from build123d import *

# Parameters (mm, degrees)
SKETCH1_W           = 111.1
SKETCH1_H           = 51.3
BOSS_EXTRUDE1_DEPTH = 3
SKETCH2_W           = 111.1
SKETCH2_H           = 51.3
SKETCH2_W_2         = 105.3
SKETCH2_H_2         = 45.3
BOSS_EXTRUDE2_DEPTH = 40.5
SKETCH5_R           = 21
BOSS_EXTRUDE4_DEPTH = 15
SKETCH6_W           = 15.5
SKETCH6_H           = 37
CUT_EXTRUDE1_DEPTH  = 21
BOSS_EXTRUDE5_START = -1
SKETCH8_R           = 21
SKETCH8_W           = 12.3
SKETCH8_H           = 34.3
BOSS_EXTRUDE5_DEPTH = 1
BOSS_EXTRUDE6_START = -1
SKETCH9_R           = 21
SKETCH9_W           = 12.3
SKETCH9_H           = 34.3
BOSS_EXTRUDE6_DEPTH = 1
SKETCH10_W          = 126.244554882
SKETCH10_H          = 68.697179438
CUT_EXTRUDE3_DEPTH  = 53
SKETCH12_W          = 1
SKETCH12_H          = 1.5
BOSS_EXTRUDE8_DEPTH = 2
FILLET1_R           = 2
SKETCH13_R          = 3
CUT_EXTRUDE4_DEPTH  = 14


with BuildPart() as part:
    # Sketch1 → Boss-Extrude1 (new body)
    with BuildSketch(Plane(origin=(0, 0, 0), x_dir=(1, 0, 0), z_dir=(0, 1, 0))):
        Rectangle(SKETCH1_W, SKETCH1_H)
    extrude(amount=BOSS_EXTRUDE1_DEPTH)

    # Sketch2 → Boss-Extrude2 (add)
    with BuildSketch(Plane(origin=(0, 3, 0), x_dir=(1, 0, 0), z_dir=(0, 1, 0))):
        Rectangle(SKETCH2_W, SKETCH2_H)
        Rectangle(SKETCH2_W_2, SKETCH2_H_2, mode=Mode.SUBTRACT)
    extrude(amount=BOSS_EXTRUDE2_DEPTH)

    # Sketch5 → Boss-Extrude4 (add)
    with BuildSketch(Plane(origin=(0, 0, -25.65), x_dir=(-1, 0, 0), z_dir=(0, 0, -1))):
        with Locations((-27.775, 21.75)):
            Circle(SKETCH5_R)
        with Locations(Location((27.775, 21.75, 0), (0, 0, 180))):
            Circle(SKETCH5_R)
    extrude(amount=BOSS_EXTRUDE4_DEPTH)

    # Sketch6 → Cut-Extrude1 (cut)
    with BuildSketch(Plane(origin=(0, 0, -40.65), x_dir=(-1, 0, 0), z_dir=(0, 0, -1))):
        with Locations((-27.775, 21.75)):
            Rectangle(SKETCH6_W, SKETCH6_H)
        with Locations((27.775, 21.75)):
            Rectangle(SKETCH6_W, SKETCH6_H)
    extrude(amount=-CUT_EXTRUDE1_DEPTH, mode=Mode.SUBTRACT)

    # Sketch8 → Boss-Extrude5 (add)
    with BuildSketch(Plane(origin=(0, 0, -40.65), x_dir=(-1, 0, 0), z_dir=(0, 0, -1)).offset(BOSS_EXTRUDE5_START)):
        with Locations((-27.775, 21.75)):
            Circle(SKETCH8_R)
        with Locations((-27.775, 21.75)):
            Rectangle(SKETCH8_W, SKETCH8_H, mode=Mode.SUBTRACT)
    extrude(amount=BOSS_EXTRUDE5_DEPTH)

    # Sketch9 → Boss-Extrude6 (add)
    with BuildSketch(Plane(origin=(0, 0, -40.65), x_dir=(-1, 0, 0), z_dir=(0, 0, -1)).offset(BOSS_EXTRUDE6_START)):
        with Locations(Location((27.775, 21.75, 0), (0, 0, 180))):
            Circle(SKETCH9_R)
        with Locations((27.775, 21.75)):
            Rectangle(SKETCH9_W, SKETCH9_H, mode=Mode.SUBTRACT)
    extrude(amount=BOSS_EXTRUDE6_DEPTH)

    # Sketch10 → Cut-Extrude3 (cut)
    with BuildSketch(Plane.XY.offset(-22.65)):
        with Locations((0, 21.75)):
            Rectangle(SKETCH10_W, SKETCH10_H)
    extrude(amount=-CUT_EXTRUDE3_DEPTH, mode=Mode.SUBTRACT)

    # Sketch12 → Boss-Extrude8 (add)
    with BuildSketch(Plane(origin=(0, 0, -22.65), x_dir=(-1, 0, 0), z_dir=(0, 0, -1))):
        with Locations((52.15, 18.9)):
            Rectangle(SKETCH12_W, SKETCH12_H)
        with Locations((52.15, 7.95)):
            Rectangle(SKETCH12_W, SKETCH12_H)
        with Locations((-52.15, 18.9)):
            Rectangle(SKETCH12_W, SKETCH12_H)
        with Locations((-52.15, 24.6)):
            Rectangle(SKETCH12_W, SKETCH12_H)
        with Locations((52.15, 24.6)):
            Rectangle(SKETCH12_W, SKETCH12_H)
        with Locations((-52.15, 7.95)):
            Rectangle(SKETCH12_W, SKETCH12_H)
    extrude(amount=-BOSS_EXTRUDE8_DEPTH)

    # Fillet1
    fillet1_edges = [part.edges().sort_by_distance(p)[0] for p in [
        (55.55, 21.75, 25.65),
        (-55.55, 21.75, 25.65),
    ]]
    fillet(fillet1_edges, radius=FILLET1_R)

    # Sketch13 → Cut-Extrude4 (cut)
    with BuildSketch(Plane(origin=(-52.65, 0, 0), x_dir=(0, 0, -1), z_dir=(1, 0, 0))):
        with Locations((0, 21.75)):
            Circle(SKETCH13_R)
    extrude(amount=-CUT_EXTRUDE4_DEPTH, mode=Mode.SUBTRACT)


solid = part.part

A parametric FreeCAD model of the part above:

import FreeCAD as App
import Part
import Sketcher
from FreeCAD import Vector
Q = App.Units.Quantity


def edges_at(feature, points):
    """Names of the edges that pass closest to the given points."""
    edges = feature.Shape.Edges
    near = lambda p: min(range(len(edges)), key=lambda i: edges[i].distToShape(Part.Vertex(*p))[0])
    return sorted({f"Edge{near(p) + 1}" for p in points})

doc = App.newDocument("Part")
body = doc.addObject("PartDesign::Body", "Body")

sketch1 = body.newObject("Sketcher::SketchObject", "Sketch")
sketch1.AttachmentSupport = (doc.getObject("XZ_Plane"), [""])
sketch1.MapMode = "FlatFace"
sketch1.addGeometry(Part.LineSegment(Vector(-56, -26, 0), Vector(-56, 26, 0)), False)
sketch1.addGeometry(Part.LineSegment(Vector(-56, 26, 0), Vector(56, 26, 0)), False)
sketch1.addGeometry(Part.LineSegment(Vector(56, 26, 0), Vector(56, -26, 0)), False)
sketch1.addGeometry(Part.LineSegment(Vector(56, -26, 0), Vector(-56, -26, 0)), False)
sketch1.addConstraint(Sketcher.Constraint("Coincident", 0, 2, 1, 1))
sketch1.addConstraint(Sketcher.Constraint("Coincident", 1, 2, 2, 1))
sketch1.addConstraint(Sketcher.Constraint("Coincident", 2, 2, 3, 1))
sketch1.addConstraint(Sketcher.Constraint("Coincident", 3, 2, 0, 1))
sketch1.addConstraint(Sketcher.Constraint("Vertical", 0))
sketch1.addConstraint(Sketcher.Constraint("Horizontal", 1))
sketch1.addConstraint(Sketcher.Constraint("Vertical", 2))
sketch1.addConstraint(Sketcher.Constraint("Horizontal", 3))
sketch1.addConstraint(Sketcher.Constraint("Symmetric", 0, 2, 2, 2, -1, 1))
sketch1.addConstraint(Sketcher.Constraint("DistanceX", 1, 1, 1, 2, Q("111.1 mm")))
sketch1.addConstraint(Sketcher.Constraint("DistanceY", 0, 1, 0, 2, Q("51.3 mm")))
pad1 = body.newObject("PartDesign::Pad", "Pad")
pad1.Profile = sketch1
pad1.Length = 3
pad1.Reversed = True

sketch2 = body.newObject("Sketcher::SketchObject", "Sketch001")
sketch2.AttachmentSupport = (doc.getObject("XZ_Plane"), [""])
sketch2.MapMode = "FlatFace"
sketch2.AttachmentOffset = App.Placement(Vector(0, 0, -3), App.Rotation())
sketch2.addGeometry(Part.LineSegment(Vector(-56, -26, 0), Vector(-56, 26, 0)), False)
sketch2.addGeometry(Part.LineSegment(Vector(-56, 26, 0), Vector(56, 26, 0)), False)
sketch2.addGeometry(Part.LineSegment(Vector(56, 26, 0), Vector(56, -26, 0)), False)
sketch2.addGeometry(Part.LineSegment(Vector(56, -26, 0), Vector(-56, -26, 0)), False)
sketch2.addGeometry(Part.LineSegment(Vector(53, 23, 0), Vector(-53, 23, 0)), False)
sketch2.addGeometry(Part.LineSegment(Vector(-53, 23, 0), Vector(-53, -23, 0)), False)
sketch2.addGeometry(Part.LineSegment(Vector(-53, -23, 0), Vector(53, -23, 0)), False)
sketch2.addGeometry(Part.LineSegment(Vector(53, -23, 0), Vector(53, 23, 0)), False)
sketch2.addConstraint(Sketcher.Constraint("Coincident", 0, 2, 1, 1))
sketch2.addConstraint(Sketcher.Constraint("Coincident", 1, 2, 2, 1))
sketch2.addConstraint(Sketcher.Constraint("Coincident", 2, 2, 3, 1))
sketch2.addConstraint(Sketcher.Constraint("Coincident", 3, 2, 0, 1))
sketch2.addConstraint(Sketcher.Constraint("Coincident", 4, 2, 5, 1))
sketch2.addConstraint(Sketcher.Constraint("Coincident", 5, 2, 6, 1))
sketch2.addConstraint(Sketcher.Constraint("Coincident", 6, 2, 7, 1))
sketch2.addConstraint(Sketcher.Constraint("Coincident", 7, 2, 4, 1))
sketch2.addConstraint(Sketcher.Constraint("Vertical", 0))
sketch2.addConstraint(Sketcher.Constraint("Horizontal", 1))
sketch2.addConstraint(Sketcher.Constraint("Vertical", 2))
sketch2.addConstraint(Sketcher.Constraint("Horizontal", 3))
sketch2.addConstraint(Sketcher.Constraint("Horizontal", 4))
sketch2.addConstraint(Sketcher.Constraint("Vertical", 5))
sketch2.addConstraint(Sketcher.Constraint("Horizontal", 6))
sketch2.addConstraint(Sketcher.Constraint("Vertical", 7))
sketch2.addConstraint(Sketcher.Constraint("Symmetric", 0, 2, 2, 2, -1, 1))
sketch2.addConstraint(Sketcher.Constraint("Symmetric", 4, 2, 6, 2, -1, 1))
sketch2.addConstraint(Sketcher.Constraint("DistanceX", 1, 1, 1, 2, Q("111.1 mm")))
sketch2.addConstraint(Sketcher.Constraint("DistanceX", 4, 2, 4, 1, Q("105.3 mm")))
sketch2.addConstraint(Sketcher.Constraint("DistanceY", 0, 1, 0, 2, Q("51.3 mm")))
sketch2.addConstraint(Sketcher.Constraint("DistanceY", 5, 2, 5, 1, Q("45.3 mm")))
pad2 = body.newObject("PartDesign::Pad", "Pad001")
pad2.Profile = sketch2
pad2.Length = 40.5
pad2.Reversed = True

sketch3 = body.newObject("Sketcher::SketchObject", "Sketch002")
sketch3.AttachmentSupport = (doc.getObject("XY_Plane"), [""])
sketch3.MapMode = "FlatFace"
sketch3.AttachmentOffset = App.Placement(Vector(0, 0, -25.65), App.Rotation())
sketch3.addGeometry(Part.Circle(Vector(28, 22, 0), Vector(0, 0, 1), 21), False)
sketch3.addGeometry(Part.Circle(Vector(-28, 22, 0), Vector(0, 0, 1), 21), False)
sketch3.addConstraint(Sketcher.Constraint("Equal", 0, 1))
sketch3.addConstraint(Sketcher.Constraint("Symmetric", 0, 3, 1, 3, -2))
sketch3.addConstraint(Sketcher.Constraint("Diameter", 0, Q("42 mm")))
sketch3.addConstraint(Sketcher.Constraint("DistanceY", -1, 1, 0, 3, Q("21.75 mm")))
sketch3.addConstraint(Sketcher.Constraint("DistanceX", 1, 3, 0, 3, Q("55.55 mm")))
pad3 = body.newObject("PartDesign::Pad", "Pad002")
pad3.Profile = sketch3
pad3.Length = 15
pad3.Reversed = True

sketch4 = body.newObject("Sketcher::SketchObject", "Sketch003")
sketch4.AttachmentSupport = (doc.getObject("XY_Plane"), [""])
sketch4.MapMode = "FlatFace"
sketch4.AttachmentOffset = App.Placement(Vector(0, 0, -40.65), App.Rotation())
sketch4.addGeometry(Part.LineSegment(Vector(36, 40, 0), Vector(36, 3, 0)), False)
sketch4.addGeometry(Part.LineSegment(Vector(36, 3, 0), Vector(20, 3, 0)), False)
sketch4.addGeometry(Part.LineSegment(Vector(20, 3, 0), Vector(20, 40, 0)), False)
sketch4.addGeometry(Part.LineSegment(Vector(20, 40, 0), Vector(36, 40, 0)), False)
sketch4.addGeometry(Part.LineSegment(Vector(-20, 40, 0), Vector(-20, 3, 0)), False)
sketch4.addGeometry(Part.LineSegment(Vector(-20, 3, 0), Vector(-36, 3, 0)), False)
sketch4.addGeometry(Part.LineSegment(Vector(-36, 3, 0), Vector(-36, 40, 0)), False)
sketch4.addGeometry(Part.LineSegment(Vector(-36, 40, 0), Vector(-20, 40, 0)), False)
sketch4.addConstraint(Sketcher.Constraint("Coincident", 0, 2, 1, 1))
sketch4.addConstraint(Sketcher.Constraint("Coincident", 1, 2, 2, 1))
sketch4.addConstraint(Sketcher.Constraint("Coincident", 2, 2, 3, 1))
sketch4.addConstraint(Sketcher.Constraint("Coincident", 3, 2, 0, 1))
sketch4.addConstraint(Sketcher.Constraint("Coincident", 4, 2, 5, 1))
sketch4.addConstraint(Sketcher.Constraint("Coincident", 5, 2, 6, 1))
sketch4.addConstraint(Sketcher.Constraint("Coincident", 6, 2, 7, 1))
sketch4.addConstraint(Sketcher.Constraint("Coincident", 7, 2, 4, 1))
sketch4.addConstraint(Sketcher.Constraint("Vertical", 0))
sketch4.addConstraint(Sketcher.Constraint("Horizontal", 1))
sketch4.addConstraint(Sketcher.Constraint("Vertical", 2))
sketch4.addConstraint(Sketcher.Constraint("Horizontal", 3))
sketch4.addConstraint(Sketcher.Constraint("Vertical", 4))
sketch4.addConstraint(Sketcher.Constraint("Horizontal", 5))
sketch4.addConstraint(Sketcher.Constraint("Vertical", 6))
sketch4.addConstraint(Sketcher.Constraint("Horizontal", 7))
sketch4.addConstraint(Sketcher.Constraint("Symmetric", 1, 2, 4, 2, -2))
sketch4.addConstraint(Sketcher.Constraint("Symmetric", 3, 2, 6, 2, -2))
sketch4.addConstraint(Sketcher.Constraint("DistanceY", 0, 2, 0, 1, Q("37 mm")))
sketch4.addConstraint(Sketcher.Constraint("DistanceX", 1, 2, 1, 1, Q("15.5 mm")))
sketch4.addConstraint(Sketcher.Constraint("DistanceY", -1, 1, 0, 2, Q("3.25 mm")))
sketch4.addConstraint(Sketcher.Constraint("DistanceX", 4, 2, 1, 2, Q("40.05 mm")))
pocket1 = body.newObject("PartDesign::Pocket", "Pocket")
pocket1.Profile = sketch4
pocket1.Length = 21
pocket1.Reversed = True

sketch5 = body.newObject("Sketcher::SketchObject", "Sketch004")
sketch5.AttachmentSupport = (doc.getObject("XY_Plane"), [""])
sketch5.MapMode = "FlatFace"
sketch5.AttachmentOffset = App.Placement(Vector(0, 0, -39.65), App.Rotation())
sketch5.addGeometry(Part.Circle(Vector(28, 22, 0), Vector(0, 0, 1), 21), False)
sketch5.addGeometry(Part.LineSegment(Vector(22, 5, 0), Vector(34, 5, 0)), False)
sketch5.addGeometry(Part.LineSegment(Vector(34, 5, 0), Vector(34, 39, 0)), False)
sketch5.addGeometry(Part.LineSegment(Vector(34, 39, 0), Vector(22, 39, 0)), False)
sketch5.addGeometry(Part.LineSegment(Vector(22, 39, 0), Vector(22, 5, 0)), False)
sketch5.addConstraint(Sketcher.Constraint("Coincident", 1, 2, 2, 1))
sketch5.addConstraint(Sketcher.Constraint("Coincident", 2, 2, 3, 1))
sketch5.addConstraint(Sketcher.Constraint("Coincident", 3, 2, 4, 1))
sketch5.addConstraint(Sketcher.Constraint("Coincident", 4, 2, 1, 1))
sketch5.addConstraint(Sketcher.Constraint("Horizontal", 1))
sketch5.addConstraint(Sketcher.Constraint("Vertical", 2))
sketch5.addConstraint(Sketcher.Constraint("Horizontal", 3))
sketch5.addConstraint(Sketcher.Constraint("Vertical", 4))
sketch5.addConstraint(Sketcher.Constraint("Diameter", 0, Q("42 mm")))
sketch5.addConstraint(Sketcher.Constraint("DistanceX", 1, 1, 1, 2, Q("12.3 mm")))
sketch5.addConstraint(Sketcher.Constraint("DistanceY", 2, 1, 2, 2, Q("34.3 mm")))
sketch5.addConstraint(Sketcher.Constraint("DistanceY", -1, 1, 1, 2, Q("4.6 mm")))
sketch5.addConstraint(Sketcher.Constraint("DistanceY", -1, 1, 0, 3, Q("21.75 mm")))
sketch5.addConstraint(Sketcher.Constraint("DistanceX", 0, 3, 1, 2, Q("6.15 mm")))
sketch5.addConstraint(Sketcher.Constraint("DistanceX", -1, 1, 0, 3, Q("27.775 mm")))
pad4 = body.newObject("PartDesign::Pad", "Pad003")
pad4.Profile = sketch5
pad4.Length = 1
pad4.Reversed = True

sketch6 = body.newObject("Sketcher::SketchObject", "Sketch005")
sketch6.AttachmentSupport = (doc.getObject("XY_Plane"), [""])
sketch6.MapMode = "FlatFace"
sketch6.AttachmentOffset = App.Placement(Vector(0, 0, -39.65), App.Rotation())
sketch6.addGeometry(Part.Circle(Vector(-28, 22, 0), Vector(0, 0, 1), 21), False)
sketch6.addGeometry(Part.LineSegment(Vector(-34, 5, 0), Vector(-22, 5, 0)), False)
sketch6.addGeometry(Part.LineSegment(Vector(-22, 5, 0), Vector(-22, 39, 0)), False)
sketch6.addGeometry(Part.LineSegment(Vector(-22, 39, 0), Vector(-34, 39, 0)), False)
sketch6.addGeometry(Part.LineSegment(Vector(-34, 39, 0), Vector(-34, 5, 0)), False)
sketch6.addConstraint(Sketcher.Constraint("Coincident", 1, 2, 2, 1))
sketch6.addConstraint(Sketcher.Constraint("Coincident", 2, 2, 3, 1))
sketch6.addConstraint(Sketcher.Constraint("Coincident", 3, 2, 4, 1))
sketch6.addConstraint(Sketcher.Constraint("Coincident", 4, 2, 1, 1))
sketch6.addConstraint(Sketcher.Constraint("Horizontal", 1))
sketch6.addConstraint(Sketcher.Constraint("Vertical", 2))
sketch6.addConstraint(Sketcher.Constraint("Horizontal", 3))
sketch6.addConstraint(Sketcher.Constraint("Vertical", 4))
sketch6.addConstraint(Sketcher.Constraint("Diameter", 0, Q("42 mm")))
sketch6.addConstraint(Sketcher.Constraint("DistanceX", 1, 1, 1, 2, Q("12.3 mm")))
sketch6.addConstraint(Sketcher.Constraint("DistanceY", 2, 1, 2, 2, Q("34.3 mm")))
sketch6.addConstraint(Sketcher.Constraint("DistanceY", -1, 1, 1, 2, Q("4.6 mm")))
sketch6.addConstraint(Sketcher.Constraint("DistanceY", -1, 1, 0, 3, Q("21.75 mm")))
sketch6.addConstraint(Sketcher.Constraint("DistanceX", 0, 3, 1, 2, Q("6.15 mm")))
sketch6.addConstraint(Sketcher.Constraint("DistanceX", 0, 3, -1, 1, Q("27.775 mm")))
pad5 = body.newObject("PartDesign::Pad", "Pad004")
pad5.Profile = sketch6
pad5.Length = 1
pad5.Reversed = True

sketch7 = body.newObject("Sketcher::SketchObject", "Sketch006")
sketch7.AttachmentSupport = (doc.getObject("XY_Plane"), [""])
sketch7.MapMode = "FlatFace"
sketch7.AttachmentOffset = App.Placement(Vector(0, 0, -22.65), App.Rotation())
sketch7.addGeometry(Part.LineSegment(Vector(-63, 56, 0), Vector(-63, -13, 0)), False)
sketch7.addGeometry(Part.LineSegment(Vector(-63, -13, 0), Vector(63, -13, 0)), False)
sketch7.addGeometry(Part.LineSegment(Vector(63, -13, 0), Vector(63, 56, 0)), False)
sketch7.addGeometry(Part.LineSegment(Vector(63, 56, 0), Vector(-63, 56, 0)), False)
sketch7.addConstraint(Sketcher.Constraint("Coincident", 0, 2, 1, 1))
sketch7.addConstraint(Sketcher.Constraint("Coincident", 1, 2, 2, 1))
sketch7.addConstraint(Sketcher.Constraint("Coincident", 2, 2, 3, 1))
sketch7.addConstraint(Sketcher.Constraint("Coincident", 3, 2, 0, 1))
sketch7.addConstraint(Sketcher.Constraint("Vertical", 0))
sketch7.addConstraint(Sketcher.Constraint("Horizontal", 1))
sketch7.addConstraint(Sketcher.Constraint("Vertical", 2))
sketch7.addConstraint(Sketcher.Constraint("Horizontal", 3))
sketch7.addConstraint(Sketcher.Constraint("DistanceY", 0, 2, 0, 1, Q("68.697179 mm")))
sketch7.addConstraint(Sketcher.Constraint("DistanceX", 1, 1, 1, 2, Q("126.244555 mm")))
sketch7.addConstraint(Sketcher.Constraint("DistanceY", 0, 2, -1, 1, Q("12.59859 mm")))
sketch7.addConstraint(Sketcher.Constraint("DistanceX", 0, 2, -1, 1, Q("63.122277 mm")))
pocket2 = body.newObject("PartDesign::Pocket", "Pocket001")
pocket2.Profile = sketch7
pocket2.Length = 53

sketch8 = body.newObject("Sketcher::SketchObject", "Sketch007")
sketch8.AttachmentSupport = (doc.getObject("XY_Plane"), [""])
sketch8.MapMode = "FlatFace"
sketch8.AttachmentOffset = App.Placement(Vector(0, 0, -22.65), App.Rotation())
sketch8.addGeometry(Part.LineSegment(Vector(-51.6, 19.6, 0), Vector(-51.6, 18.1, 0)), False)
sketch8.addGeometry(Part.LineSegment(Vector(-51.6, 18.1, 0), Vector(-52.6, 18.1, 0)), False)
sketch8.addGeometry(Part.LineSegment(Vector(-52.6, 18.1, 0), Vector(-52.6, 19.6, 0)), False)
sketch8.addGeometry(Part.LineSegment(Vector(-52.6, 19.6, 0), Vector(-51.6, 19.6, 0)), False)
sketch8.addGeometry(Part.LineSegment(Vector(-51.6, 8.7, 0), Vector(-51.6, 7.2, 0)), False)
sketch8.addGeometry(Part.LineSegment(Vector(-51.6, 7.2, 0), Vector(-52.6, 7.2, 0)), False)
sketch8.addGeometry(Part.LineSegment(Vector(-52.6, 7.2, 0), Vector(-52.6, 8.7, 0)), False)
sketch8.addGeometry(Part.LineSegment(Vector(-52.6, 8.7, 0), Vector(-51.6, 8.7, 0)), False)
sketch8.addGeometry(Part.LineSegment(Vector(52.6, 19.6, 0), Vector(52.6, 18.1, 0)), False)
sketch8.addGeometry(Part.LineSegment(Vector(52.6, 18.1, 0), Vector(51.6, 18.1, 0)), False)
sketch8.addGeometry(Part.LineSegment(Vector(51.6, 18.1, 0), Vector(51.6, 19.6, 0)), False)
sketch8.addGeometry(Part.LineSegment(Vector(51.6, 19.6, 0), Vector(52.6, 19.6, 0)), False)
sketch8.addGeometry(Part.LineSegment(Vector(52.6, 25.4, 0), Vector(52.6, 23.9, 0)), False)
sketch8.addGeometry(Part.LineSegment(Vector(52.6, 23.9, 0), Vector(51.6, 23.9, 0)), False)
sketch8.addGeometry(Part.LineSegment(Vector(51.6, 23.9, 0), Vector(51.6, 25.4, 0)), False)
sketch8.addGeometry(Part.LineSegment(Vector(51.6, 25.4, 0), Vector(52.6, 25.4, 0)), False)
sketch8.addGeometry(Part.LineSegment(Vector(-51.6, 25.4, 0), Vector(-51.6, 23.9, 0)), False)
sketch8.addGeometry(Part.LineSegment(Vector(-51.6, 23.9, 0), Vector(-52.6, 23.9, 0)), False)
sketch8.addGeometry(Part.LineSegment(Vector(-52.6, 23.9, 0), Vector(-52.6, 25.4, 0)), False)
sketch8.addGeometry(Part.LineSegment(Vector(-52.6, 25.4, 0), Vector(-51.6, 25.4, 0)), False)
sketch8.addGeometry(Part.LineSegment(Vector(52.6, 8.7, 0), Vector(52.6, 7.2, 0)), False)
sketch8.addGeometry(Part.LineSegment(Vector(52.6, 7.2, 0), Vector(51.6, 7.2, 0)), False)
sketch8.addGeometry(Part.LineSegment(Vector(51.6, 7.2, 0), Vector(51.6, 8.7, 0)), False)
sketch8.addGeometry(Part.LineSegment(Vector(51.6, 8.7, 0), Vector(52.6, 8.7, 0)), False)
sketch8.addConstraint(Sketcher.Constraint("Coincident", 0, 2, 1, 1))
sketch8.addConstraint(Sketcher.Constraint("Coincident", 1, 2, 2, 1))
sketch8.addConstraint(Sketcher.Constraint("Coincident", 2, 2, 3, 1))
sketch8.addConstraint(Sketcher.Constraint("Coincident", 3, 2, 0, 1))
sketch8.addConstraint(Sketcher.Constraint("Coincident", 4, 2, 5, 1))
sketch8.addConstraint(Sketcher.Constraint("Coincident", 5, 2, 6, 1))
sketch8.addConstraint(Sketcher.Constraint("Coincident", 6, 2, 7, 1))
sketch8.addConstraint(Sketcher.Constraint("Coincident", 7, 2, 4, 1))
sketch8.addConstraint(Sketcher.Constraint("Coincident", 8, 2, 9, 1))
sketch8.addConstraint(Sketcher.Constraint("Coincident", 9, 2, 10, 1))
sketch8.addConstraint(Sketcher.Constraint("Coincident", 10, 2, 11, 1))
sketch8.addConstraint(Sketcher.Constraint("Coincident", 11, 2, 8, 1))
sketch8.addConstraint(Sketcher.Constraint("Coincident", 12, 2, 13, 1))
sketch8.addConstraint(Sketcher.Constraint("Coincident", 13, 2, 14, 1))
sketch8.addConstraint(Sketcher.Constraint("Coincident", 14, 2, 15, 1))
sketch8.addConstraint(Sketcher.Constraint("Coincident", 15, 2, 12, 1))
sketch8.addConstraint(Sketcher.Constraint("Coincident", 16, 2, 17, 1))
sketch8.addConstraint(Sketcher.Constraint("Coincident", 17, 2, 18, 1))
sketch8.addConstraint(Sketcher.Constraint("Coincident", 18, 2, 19, 1))
sketch8.addConstraint(Sketcher.Constraint("Coincident", 19, 2, 16, 1))
sketch8.addConstraint(Sketcher.Constraint("Coincident", 20, 2, 21, 1))
sketch8.addConstraint(Sketcher.Constraint("Coincident", 21, 2, 22, 1))
sketch8.addConstraint(Sketcher.Constraint("Coincident", 22, 2, 23, 1))
sketch8.addConstraint(Sketcher.Constraint("Coincident", 23, 2, 20, 1))
sketch8.addConstraint(Sketcher.Constraint("Vertical", 0))
sketch8.addConstraint(Sketcher.Constraint("Horizontal", 1))
sketch8.addConstraint(Sketcher.Constraint("Vertical", 2))
sketch8.addConstraint(Sketcher.Constraint("Horizontal", 3))
sketch8.addConstraint(Sketcher.Constraint("Vertical", 4))
sketch8.addConstraint(Sketcher.Constraint("Horizontal", 5))
sketch8.addConstraint(Sketcher.Constraint("Vertical", 6))
sketch8.addConstraint(Sketcher.Constraint("Horizontal", 7))
sketch8.addConstraint(Sketcher.Constraint("Vertical", 8))
sketch8.addConstraint(Sketcher.Constraint("Horizontal", 9))
sketch8.addConstraint(Sketcher.Constraint("Vertical", 10))
sketch8.addConstraint(Sketcher.Constraint("Horizontal", 11))
sketch8.addConstraint(Sketcher.Constraint("Vertical", 12))
sketch8.addConstraint(Sketcher.Constraint("Horizontal", 13))
sketch8.addConstraint(Sketcher.Constraint("Vertical", 14))
sketch8.addConstraint(Sketcher.Constraint("Horizontal", 15))
sketch8.addConstraint(Sketcher.Constraint("Vertical", 16))
sketch8.addConstraint(Sketcher.Constraint("Horizontal", 17))
sketch8.addConstraint(Sketcher.Constraint("Vertical", 18))
sketch8.addConstraint(Sketcher.Constraint("Horizontal", 19))
sketch8.addConstraint(Sketcher.Constraint("Vertical", 20))
sketch8.addConstraint(Sketcher.Constraint("Horizontal", 21))
sketch8.addConstraint(Sketcher.Constraint("Vertical", 22))
sketch8.addConstraint(Sketcher.Constraint("Horizontal", 23))
sketch8.addConstraint(Sketcher.Constraint("Symmetric", 1, 2, 8, 2, -2))
sketch8.addConstraint(Sketcher.Constraint("Symmetric", 3, 2, 10, 2, -2))
sketch8.addConstraint(Sketcher.Constraint("Symmetric", 13, 2, 16, 2, -2))
sketch8.addConstraint(Sketcher.Constraint("Symmetric", 15, 2, 18, 2, -2))
sketch8.addConstraint(Sketcher.Constraint("Symmetric", 5, 2, 20, 2, -2))
sketch8.addConstraint(Sketcher.Constraint("Symmetric", 7, 2, 22, 2, -2))
sketch8.addConstraint(Sketcher.Constraint("Vertical", 3, 2, 4, 2))
sketch8.addConstraint(Sketcher.Constraint("Vertical", 2, 2, 5, 2))
sketch8.addConstraint(Sketcher.Constraint("Vertical", 11, 2, 12, 2))
sketch8.addConstraint(Sketcher.Constraint("Vertical", 10, 2, 13, 2))
sketch8.addConstraint(Sketcher.Constraint("Equal", 2, 4))
sketch8.addConstraint(Sketcher.Constraint("Equal", 10, 12))
sketch8.addConstraint(Sketcher.Constraint("DistanceX", 1, 2, 1, 1, Q("1 mm")))
sketch8.addConstraint(Sketcher.Constraint("DistanceY", 0, 2, 0, 1, Q("1.5 mm")))
sketch8.addConstraint(Sketcher.Constraint("DistanceY", -1, 1, 4, 2, Q("7.2 mm")))
sketch8.addConstraint(Sketcher.Constraint("DistanceX", 0, 2, 8, 2, Q("104.3 mm")))
sketch8.addConstraint(Sketcher.Constraint("DistanceY", 11, 2, 12, 2, Q("4.2 mm")))
sketch8.addConstraint(Sketcher.Constraint("DistanceY", -1, 1, 0, 2, Q("18.15 mm")))
pad6 = body.newObject("PartDesign::Pad", "Pad005")
pad6.Profile = sketch8
pad6.Length = 2
doc.recompute()

fillet = body.newObject("PartDesign::Fillet", "Fillet")
fillet.Base = (pad6, edges_at(pad6, [(55.55, 21.75, 25.65), (-55.55, 21.75, 25.65)]))
fillet.Radius = 2

sketch9 = body.newObject("Sketcher::SketchObject", "Sketch008")
sketch9.AttachmentSupport = (doc.getObject("YZ_Plane"), [""])
sketch9.MapMode = "FlatFace"
sketch9.AttachmentOffset = App.Placement(Vector(0, 0, -52.65), App.Rotation())
sketch9.addGeometry(Part.Circle(Vector(21.8, 0, 0), Vector(0, 0, 1), 3), False)
sketch9.addConstraint(Sketcher.Constraint("PointOnObject", 0, 3, -1))
sketch9.addConstraint(Sketcher.Constraint("Diameter", 0, Q("6 mm")))
sketch9.addConstraint(Sketcher.Constraint("DistanceX", -1, 1, 0, 3, Q("21.75 mm")))
pocket3 = body.newObject("PartDesign::Pocket", "Pocket002")
pocket3.Profile = sketch9
pocket3.Length = 14

doc.recompute()
